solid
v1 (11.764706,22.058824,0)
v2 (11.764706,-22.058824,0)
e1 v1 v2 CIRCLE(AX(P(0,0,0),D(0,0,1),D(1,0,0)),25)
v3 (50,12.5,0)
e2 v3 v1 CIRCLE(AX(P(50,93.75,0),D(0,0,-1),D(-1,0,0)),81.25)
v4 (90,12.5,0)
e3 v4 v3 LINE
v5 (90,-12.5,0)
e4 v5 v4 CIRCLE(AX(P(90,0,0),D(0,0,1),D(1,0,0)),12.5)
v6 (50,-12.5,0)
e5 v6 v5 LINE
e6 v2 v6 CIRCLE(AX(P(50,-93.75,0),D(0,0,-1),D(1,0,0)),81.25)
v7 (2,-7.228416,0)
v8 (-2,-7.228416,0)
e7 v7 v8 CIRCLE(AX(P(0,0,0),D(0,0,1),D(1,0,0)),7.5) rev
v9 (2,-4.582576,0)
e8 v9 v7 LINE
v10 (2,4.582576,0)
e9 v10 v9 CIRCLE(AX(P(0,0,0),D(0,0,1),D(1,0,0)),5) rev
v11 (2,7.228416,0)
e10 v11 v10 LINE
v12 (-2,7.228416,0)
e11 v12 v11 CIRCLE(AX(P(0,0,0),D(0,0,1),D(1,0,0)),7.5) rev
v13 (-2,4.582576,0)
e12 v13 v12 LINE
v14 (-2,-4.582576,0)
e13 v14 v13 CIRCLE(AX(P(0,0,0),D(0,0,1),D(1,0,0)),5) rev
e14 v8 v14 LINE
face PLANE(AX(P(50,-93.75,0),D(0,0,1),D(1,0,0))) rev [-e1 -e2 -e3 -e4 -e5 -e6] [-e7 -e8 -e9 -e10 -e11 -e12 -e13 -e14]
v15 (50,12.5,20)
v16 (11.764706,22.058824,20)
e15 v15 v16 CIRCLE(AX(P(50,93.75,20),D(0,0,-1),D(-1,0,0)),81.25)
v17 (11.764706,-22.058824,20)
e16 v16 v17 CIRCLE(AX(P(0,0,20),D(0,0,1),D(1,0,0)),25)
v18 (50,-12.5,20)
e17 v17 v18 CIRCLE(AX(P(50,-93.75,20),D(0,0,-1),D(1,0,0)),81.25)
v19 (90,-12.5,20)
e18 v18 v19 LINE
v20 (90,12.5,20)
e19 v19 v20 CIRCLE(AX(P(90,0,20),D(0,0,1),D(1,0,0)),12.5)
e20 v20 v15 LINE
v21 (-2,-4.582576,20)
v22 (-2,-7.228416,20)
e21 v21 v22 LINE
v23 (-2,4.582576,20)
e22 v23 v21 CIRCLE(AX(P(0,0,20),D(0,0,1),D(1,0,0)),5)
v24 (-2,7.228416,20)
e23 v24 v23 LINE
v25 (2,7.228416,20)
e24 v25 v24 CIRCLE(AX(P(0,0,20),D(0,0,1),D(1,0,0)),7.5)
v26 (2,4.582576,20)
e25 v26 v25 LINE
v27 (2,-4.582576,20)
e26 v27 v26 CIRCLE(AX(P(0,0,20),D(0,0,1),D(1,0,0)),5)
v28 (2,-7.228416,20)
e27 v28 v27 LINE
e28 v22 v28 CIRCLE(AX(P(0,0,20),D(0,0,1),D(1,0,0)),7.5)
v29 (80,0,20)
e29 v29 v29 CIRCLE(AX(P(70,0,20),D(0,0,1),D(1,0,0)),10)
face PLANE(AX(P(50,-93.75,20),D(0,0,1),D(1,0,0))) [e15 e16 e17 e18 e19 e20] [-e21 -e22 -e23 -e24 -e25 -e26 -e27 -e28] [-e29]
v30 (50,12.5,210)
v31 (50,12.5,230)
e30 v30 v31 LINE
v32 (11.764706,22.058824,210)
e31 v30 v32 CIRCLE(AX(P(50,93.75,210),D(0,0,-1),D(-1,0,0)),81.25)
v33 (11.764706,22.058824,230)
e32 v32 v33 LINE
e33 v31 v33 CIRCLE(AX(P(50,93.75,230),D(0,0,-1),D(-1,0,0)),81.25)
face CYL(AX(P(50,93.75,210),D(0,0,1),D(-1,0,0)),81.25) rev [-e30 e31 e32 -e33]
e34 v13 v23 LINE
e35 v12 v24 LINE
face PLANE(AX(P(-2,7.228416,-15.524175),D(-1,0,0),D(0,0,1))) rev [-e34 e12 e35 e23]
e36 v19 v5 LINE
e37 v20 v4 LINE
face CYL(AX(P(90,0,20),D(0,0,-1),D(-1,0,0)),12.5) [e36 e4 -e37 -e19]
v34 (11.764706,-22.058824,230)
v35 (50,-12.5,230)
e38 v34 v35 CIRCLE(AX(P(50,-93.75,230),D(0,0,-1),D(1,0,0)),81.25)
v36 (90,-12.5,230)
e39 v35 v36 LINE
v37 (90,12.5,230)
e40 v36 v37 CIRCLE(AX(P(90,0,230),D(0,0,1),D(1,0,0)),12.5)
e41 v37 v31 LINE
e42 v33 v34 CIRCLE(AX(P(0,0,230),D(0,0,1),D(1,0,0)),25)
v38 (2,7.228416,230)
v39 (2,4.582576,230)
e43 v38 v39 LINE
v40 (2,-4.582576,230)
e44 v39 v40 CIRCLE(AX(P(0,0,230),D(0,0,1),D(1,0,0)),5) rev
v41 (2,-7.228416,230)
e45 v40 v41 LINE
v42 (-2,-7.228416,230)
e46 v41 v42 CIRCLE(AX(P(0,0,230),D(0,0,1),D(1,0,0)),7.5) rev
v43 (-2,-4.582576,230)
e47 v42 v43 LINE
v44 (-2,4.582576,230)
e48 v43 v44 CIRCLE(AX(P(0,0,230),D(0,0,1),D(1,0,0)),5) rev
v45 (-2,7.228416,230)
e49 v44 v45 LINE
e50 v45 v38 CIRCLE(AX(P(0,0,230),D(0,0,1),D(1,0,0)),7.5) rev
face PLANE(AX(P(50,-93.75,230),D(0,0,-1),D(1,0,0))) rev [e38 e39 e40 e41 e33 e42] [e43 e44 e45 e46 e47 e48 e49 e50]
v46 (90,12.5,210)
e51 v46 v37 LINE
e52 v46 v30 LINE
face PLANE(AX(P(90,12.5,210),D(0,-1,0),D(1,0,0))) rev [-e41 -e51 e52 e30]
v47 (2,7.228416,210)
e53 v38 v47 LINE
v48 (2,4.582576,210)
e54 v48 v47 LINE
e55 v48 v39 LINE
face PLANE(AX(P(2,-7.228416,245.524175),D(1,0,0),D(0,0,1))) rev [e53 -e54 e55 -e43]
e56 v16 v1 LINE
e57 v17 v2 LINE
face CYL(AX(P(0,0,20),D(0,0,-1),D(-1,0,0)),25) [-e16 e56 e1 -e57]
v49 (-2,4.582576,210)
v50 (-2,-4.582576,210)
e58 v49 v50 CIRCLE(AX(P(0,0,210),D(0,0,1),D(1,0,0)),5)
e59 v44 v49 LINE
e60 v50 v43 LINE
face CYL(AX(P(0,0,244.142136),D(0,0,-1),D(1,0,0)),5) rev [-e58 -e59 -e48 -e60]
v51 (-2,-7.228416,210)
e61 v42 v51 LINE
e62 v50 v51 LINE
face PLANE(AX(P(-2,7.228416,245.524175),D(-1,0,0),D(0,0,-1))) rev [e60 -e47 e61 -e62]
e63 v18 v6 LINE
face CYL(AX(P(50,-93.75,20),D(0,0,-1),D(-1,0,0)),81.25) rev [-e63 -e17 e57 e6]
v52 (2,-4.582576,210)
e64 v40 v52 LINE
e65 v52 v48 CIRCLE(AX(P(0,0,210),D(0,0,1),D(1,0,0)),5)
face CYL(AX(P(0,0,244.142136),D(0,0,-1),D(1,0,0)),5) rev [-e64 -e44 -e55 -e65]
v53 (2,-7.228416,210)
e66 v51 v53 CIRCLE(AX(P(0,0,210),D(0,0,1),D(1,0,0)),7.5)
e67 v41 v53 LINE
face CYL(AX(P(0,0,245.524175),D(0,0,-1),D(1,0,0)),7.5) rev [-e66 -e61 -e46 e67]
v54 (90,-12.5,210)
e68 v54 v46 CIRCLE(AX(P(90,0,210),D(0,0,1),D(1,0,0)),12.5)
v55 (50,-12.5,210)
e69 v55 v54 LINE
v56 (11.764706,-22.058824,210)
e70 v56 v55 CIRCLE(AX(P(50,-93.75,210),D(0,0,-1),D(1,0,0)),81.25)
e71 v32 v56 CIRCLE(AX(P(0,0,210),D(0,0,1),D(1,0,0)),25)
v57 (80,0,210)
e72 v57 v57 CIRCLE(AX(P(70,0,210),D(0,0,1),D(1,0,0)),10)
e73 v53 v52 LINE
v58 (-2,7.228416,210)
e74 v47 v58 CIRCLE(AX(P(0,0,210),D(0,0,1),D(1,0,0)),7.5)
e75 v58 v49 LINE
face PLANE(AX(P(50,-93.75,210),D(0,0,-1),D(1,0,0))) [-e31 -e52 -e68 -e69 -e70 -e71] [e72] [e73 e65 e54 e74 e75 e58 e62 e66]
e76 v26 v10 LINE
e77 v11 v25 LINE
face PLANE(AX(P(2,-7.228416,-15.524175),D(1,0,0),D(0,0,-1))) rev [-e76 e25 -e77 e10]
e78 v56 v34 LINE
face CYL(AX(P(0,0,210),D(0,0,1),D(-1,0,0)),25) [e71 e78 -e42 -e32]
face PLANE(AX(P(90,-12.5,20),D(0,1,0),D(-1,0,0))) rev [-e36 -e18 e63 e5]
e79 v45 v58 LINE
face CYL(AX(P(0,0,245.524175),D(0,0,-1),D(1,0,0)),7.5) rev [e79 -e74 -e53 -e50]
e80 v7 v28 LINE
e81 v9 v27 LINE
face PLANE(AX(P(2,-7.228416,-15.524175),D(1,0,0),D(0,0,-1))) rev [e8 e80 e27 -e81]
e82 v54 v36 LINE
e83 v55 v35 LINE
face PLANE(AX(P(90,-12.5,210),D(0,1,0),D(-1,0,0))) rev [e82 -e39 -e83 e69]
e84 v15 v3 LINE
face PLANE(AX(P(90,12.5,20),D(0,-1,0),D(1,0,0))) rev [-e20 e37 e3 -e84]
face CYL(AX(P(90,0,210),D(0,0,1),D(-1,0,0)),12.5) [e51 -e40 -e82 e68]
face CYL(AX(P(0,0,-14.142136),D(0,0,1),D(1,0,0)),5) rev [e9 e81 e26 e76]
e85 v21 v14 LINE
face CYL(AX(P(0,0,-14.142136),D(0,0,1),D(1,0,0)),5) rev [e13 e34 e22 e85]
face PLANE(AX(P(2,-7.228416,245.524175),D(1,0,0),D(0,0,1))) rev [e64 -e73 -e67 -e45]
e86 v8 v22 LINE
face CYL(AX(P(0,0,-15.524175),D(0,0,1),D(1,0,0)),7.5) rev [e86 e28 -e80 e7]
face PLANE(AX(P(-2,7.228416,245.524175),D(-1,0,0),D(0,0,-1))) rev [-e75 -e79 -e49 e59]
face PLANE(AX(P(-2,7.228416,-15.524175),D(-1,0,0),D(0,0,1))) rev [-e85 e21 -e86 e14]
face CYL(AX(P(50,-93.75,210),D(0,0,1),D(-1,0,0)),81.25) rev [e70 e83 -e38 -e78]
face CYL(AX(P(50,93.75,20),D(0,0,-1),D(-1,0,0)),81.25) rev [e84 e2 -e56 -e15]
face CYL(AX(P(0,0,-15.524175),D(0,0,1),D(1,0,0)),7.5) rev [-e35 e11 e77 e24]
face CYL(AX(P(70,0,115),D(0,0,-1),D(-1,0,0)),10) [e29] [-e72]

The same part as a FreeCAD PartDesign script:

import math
import FreeCAD as App
import Part
import Sketcher

V = App.Vector
Q = App.Units.Quantity

doc = App.newDocument("Part")
body = doc.addObject("PartDesign::Body", "Body")

# Sketch on XY plane
sketch1 = doc.addObject("Sketcher::SketchObject", "Sketch")
body.addObject(sketch1)
sketch1.AttachmentSupport = (doc.XY_Plane, [""])
sketch1.MapMode = "FlatFace"
sketch1.addGeometry(Part.LineSegment(V(90, 12, 0), V(50, 12, 0)), False)
sketch1.addGeometry(Part.ArcOfCircle(Part.Circle(V(50, 94, 0), V(0, 0, 1), 81), math.radians(-118), math.radians(-90)), False)
sketch1.addGeometry(Part.ArcOfCircle(Part.Circle(V(0, 0, 0), V(0, 0, 1), 25), math.radians(62), math.radians(298)), False)
sketch1.addGeometry(Part.ArcOfCircle(Part.Circle(V(50, -94, 0), V(0, 0, 1), 81), math.radians(90), math.radians(118)), False)
sketch1.addGeometry(Part.LineSegment(V(50, -12, 0), V(90, -12, 0)), False)
sketch1.addGeometry(Part.ArcOfCircle(Part.Circle(V(90, 0, 0), V(0, 0, 1), 12), math.radians(-90), math.radians(90)), False)
sketch1.addConstraint(Sketcher.Constraint("Tangent", 0, 2, 1, 2))
sketch1.addConstraint(Sketcher.Constraint("Tangent", 1, 1, 2, 1))
sketch1.addConstraint(Sketcher.Constraint("Tangent", 2, 2, 3, 2))
sketch1.addConstraint(Sketcher.Constraint("Tangent", 3, 1, 4, 1))
sketch1.addConstraint(Sketcher.Constraint("Tangent", 4, 2, 5, 1))
sketch1.addConstraint(Sketcher.Constraint("Tangent", 5, 2, 0, 1))
sketch1.addConstraint(Sketcher.Constraint("Horizontal", 0))
sketch1.addConstraint(Sketcher.Constraint("Horizontal", 4))
sketch1.addConstraint(Sketcher.Constraint("Coincident", 2, 3, -1, 1))
sketch1.addConstraint(Sketcher.Constraint("Equal", 1, 3))
sketch1.addConstraint(Sketcher.Constraint("PointOnObject", 5, 3, -1))
sketch1.addConstraint(Sketcher.Constraint("Radius", 2, Q("25 mm")))
sketch1.addConstraint(Sketcher.Constraint("Radius", 5, Q("12.5 mm")))
sketch1.addConstraint(Sketcher.Constraint("DistanceX", 0, 2, 0, 1, Q("40 mm")))
sketch1.addConstraint(Sketcher.Constraint("Radius", 1, Q("81.25 mm")))
pad1 = doc.addObject("PartDesign::Pad", "Pad")
body.addObject(pad1)
pad1.Profile = sketch1
pad1.Length = 20

# Sketch on XY plane
sketch2 = doc.addObject("Sketcher::SketchObject", "Sketch001")
body.addObject(sketch2)
sketch2.AttachmentSupport = (doc.XY_Plane, [""])
sketch2.MapMode = "FlatFace"
sketch2.AttachmentOffset = App.Placement(V(0, 0, 20), App.Rotation())
sketch2.addGeometry(Part.Circle(V(0, 0, 0), V(0, 0, 1), 5), False)
sketch2.addConstraint(Sketcher.Constraint("Coincident", 0, 3, -1, 1))
sketch2.addConstraint(Sketcher.Constraint("Diameter", 0, Q("10 mm")))
pocket1 = doc.addObject("PartDesign::Pocket", "Pocket")
body.addObject(pocket1)
pocket1.Profile = sketch2
pocket1.Length = 20

# Sketch on XY plane
sketch3 = doc.addObject("Sketcher::SketchObject", "Sketch002")
body.addObject(sketch3)
sketch3.AttachmentSupport = (doc.XY_Plane, [""])
sketch3.MapMode = "FlatFace"
sketch3.AttachmentOffset = App.Placement(V(0, 0, 20), App.Rotation())
sketch3.addGeometry(Part.LineSegment(V(-2, 7.2, 0), V(-2, -7.2, 0)), False)
sketch3.addGeometry(Part.ArcOfCircle(Part.Circle(V(0, 0, 0), V(0, 0, 1), 7.5), math.radians(-105), math.radians(-75)), False)
sketch3.addGeometry(Part.LineSegment(V(2, -7.2, 0), V(2, 7.2, 0)), False)
sketch3.addGeometry(Part.ArcOfCircle(Part.Circle(V(0, 0, 0), V(0, 0, 1), 7.5), math.radians(75), math.radians(105)), False)
sketch3.addConstraint(Sketcher.Constraint("Coincident", 0, 2, 1, 1))
sketch3.addConstraint(Sketcher.Constraint("Coincident", 1, 2, 2, 1))
sketch3.addConstraint(Sketcher.Constraint("Coincident", 2, 2, 3, 1))
sketch3.addConstraint(Sketcher.Constraint("Coincident", 3, 2, 0, 1))
sketch3.addConstraint(Sketcher.Constraint("Vertical", 0))
sketch3.addConstraint(Sketcher.Constraint("Vertical", 2))
sketch3.addConstraint(Sketcher.Constraint("Coincident", 1, 3, -1, 1))
sketch3.addConstraint(Sketcher.Constraint("Coincident", 3, 3, -1, 1))
sketch3.addConstraint(Sketcher.Constraint("Equal", 1, 3))
sketch3.addConstraint(Sketcher.Constraint("Horizontal", 0, 2, 1, 2))
sketch3.addConstraint(Sketcher.Constraint("Radius", 1, Q("7.5 mm")))
sketch3.addConstraint(Sketcher.Constraint("DistanceX", 0, 2, -1, 1, Q("2 mm")))
pocket2 = doc.addObject("PartDesign::Pocket", "Pocket001")
body.addObject(pocket2)
pocket2.Profile = sketch3
pocket2.Length = 20

# Sketch on XY plane
sketch4 = doc.addObject("Sketcher::SketchObject", "Sketch003")
body.addObject(sketch4)
sketch4.AttachmentSupport = (doc.XY_Plane, [""])
sketch4.MapMode = "FlatFace"
sketch4.AttachmentOffset = App.Placement(V(0, 0, 20), App.Rotation())
sketch4.addGeometry(Part.Circle(V(70, 0, 0), V(0, 0, 1), 10), False)
sketch4.addConstraint(Sketcher.Constraint("PointOnObject", 0, 3, -1))
sketch4.addConstraint(Sketcher.Constraint("Diameter", 0, Q("20 mm")))
sketch4.addConstraint(Sketcher.Constraint("DistanceX", -1, 1, 0, 3, Q("70 mm")))
pad2 = doc.addObject("PartDesign::Pad", "Pad001")
body.addObject(pad2)
pad2.Profile = sketch4
pad2.Length = 95
body2 = doc.addObject("PartDesign::Body", "Body001")
doc.recompute()

body2.BaseFeature = body
doc.recompute()

mirroring = doc.addObject("Part::Mirroring", "Mirroring")
mirroring.Source = body
mirroring.Base = V(70, 0, 115)
mirroring.Normal = V(0, 0, 1)
body3 = doc.addObject("PartDesign::Body", "Body002")
body3.BaseFeature = mirroring
boolean = doc.addObject("PartDesign::Boolean", "Boolean")
body2.addObject(boolean)
boolean.Type = "Fuse"
boolean.addObjects([body3])
doc.recompute()
mirroring.Visibility = False

doc.recompute()
